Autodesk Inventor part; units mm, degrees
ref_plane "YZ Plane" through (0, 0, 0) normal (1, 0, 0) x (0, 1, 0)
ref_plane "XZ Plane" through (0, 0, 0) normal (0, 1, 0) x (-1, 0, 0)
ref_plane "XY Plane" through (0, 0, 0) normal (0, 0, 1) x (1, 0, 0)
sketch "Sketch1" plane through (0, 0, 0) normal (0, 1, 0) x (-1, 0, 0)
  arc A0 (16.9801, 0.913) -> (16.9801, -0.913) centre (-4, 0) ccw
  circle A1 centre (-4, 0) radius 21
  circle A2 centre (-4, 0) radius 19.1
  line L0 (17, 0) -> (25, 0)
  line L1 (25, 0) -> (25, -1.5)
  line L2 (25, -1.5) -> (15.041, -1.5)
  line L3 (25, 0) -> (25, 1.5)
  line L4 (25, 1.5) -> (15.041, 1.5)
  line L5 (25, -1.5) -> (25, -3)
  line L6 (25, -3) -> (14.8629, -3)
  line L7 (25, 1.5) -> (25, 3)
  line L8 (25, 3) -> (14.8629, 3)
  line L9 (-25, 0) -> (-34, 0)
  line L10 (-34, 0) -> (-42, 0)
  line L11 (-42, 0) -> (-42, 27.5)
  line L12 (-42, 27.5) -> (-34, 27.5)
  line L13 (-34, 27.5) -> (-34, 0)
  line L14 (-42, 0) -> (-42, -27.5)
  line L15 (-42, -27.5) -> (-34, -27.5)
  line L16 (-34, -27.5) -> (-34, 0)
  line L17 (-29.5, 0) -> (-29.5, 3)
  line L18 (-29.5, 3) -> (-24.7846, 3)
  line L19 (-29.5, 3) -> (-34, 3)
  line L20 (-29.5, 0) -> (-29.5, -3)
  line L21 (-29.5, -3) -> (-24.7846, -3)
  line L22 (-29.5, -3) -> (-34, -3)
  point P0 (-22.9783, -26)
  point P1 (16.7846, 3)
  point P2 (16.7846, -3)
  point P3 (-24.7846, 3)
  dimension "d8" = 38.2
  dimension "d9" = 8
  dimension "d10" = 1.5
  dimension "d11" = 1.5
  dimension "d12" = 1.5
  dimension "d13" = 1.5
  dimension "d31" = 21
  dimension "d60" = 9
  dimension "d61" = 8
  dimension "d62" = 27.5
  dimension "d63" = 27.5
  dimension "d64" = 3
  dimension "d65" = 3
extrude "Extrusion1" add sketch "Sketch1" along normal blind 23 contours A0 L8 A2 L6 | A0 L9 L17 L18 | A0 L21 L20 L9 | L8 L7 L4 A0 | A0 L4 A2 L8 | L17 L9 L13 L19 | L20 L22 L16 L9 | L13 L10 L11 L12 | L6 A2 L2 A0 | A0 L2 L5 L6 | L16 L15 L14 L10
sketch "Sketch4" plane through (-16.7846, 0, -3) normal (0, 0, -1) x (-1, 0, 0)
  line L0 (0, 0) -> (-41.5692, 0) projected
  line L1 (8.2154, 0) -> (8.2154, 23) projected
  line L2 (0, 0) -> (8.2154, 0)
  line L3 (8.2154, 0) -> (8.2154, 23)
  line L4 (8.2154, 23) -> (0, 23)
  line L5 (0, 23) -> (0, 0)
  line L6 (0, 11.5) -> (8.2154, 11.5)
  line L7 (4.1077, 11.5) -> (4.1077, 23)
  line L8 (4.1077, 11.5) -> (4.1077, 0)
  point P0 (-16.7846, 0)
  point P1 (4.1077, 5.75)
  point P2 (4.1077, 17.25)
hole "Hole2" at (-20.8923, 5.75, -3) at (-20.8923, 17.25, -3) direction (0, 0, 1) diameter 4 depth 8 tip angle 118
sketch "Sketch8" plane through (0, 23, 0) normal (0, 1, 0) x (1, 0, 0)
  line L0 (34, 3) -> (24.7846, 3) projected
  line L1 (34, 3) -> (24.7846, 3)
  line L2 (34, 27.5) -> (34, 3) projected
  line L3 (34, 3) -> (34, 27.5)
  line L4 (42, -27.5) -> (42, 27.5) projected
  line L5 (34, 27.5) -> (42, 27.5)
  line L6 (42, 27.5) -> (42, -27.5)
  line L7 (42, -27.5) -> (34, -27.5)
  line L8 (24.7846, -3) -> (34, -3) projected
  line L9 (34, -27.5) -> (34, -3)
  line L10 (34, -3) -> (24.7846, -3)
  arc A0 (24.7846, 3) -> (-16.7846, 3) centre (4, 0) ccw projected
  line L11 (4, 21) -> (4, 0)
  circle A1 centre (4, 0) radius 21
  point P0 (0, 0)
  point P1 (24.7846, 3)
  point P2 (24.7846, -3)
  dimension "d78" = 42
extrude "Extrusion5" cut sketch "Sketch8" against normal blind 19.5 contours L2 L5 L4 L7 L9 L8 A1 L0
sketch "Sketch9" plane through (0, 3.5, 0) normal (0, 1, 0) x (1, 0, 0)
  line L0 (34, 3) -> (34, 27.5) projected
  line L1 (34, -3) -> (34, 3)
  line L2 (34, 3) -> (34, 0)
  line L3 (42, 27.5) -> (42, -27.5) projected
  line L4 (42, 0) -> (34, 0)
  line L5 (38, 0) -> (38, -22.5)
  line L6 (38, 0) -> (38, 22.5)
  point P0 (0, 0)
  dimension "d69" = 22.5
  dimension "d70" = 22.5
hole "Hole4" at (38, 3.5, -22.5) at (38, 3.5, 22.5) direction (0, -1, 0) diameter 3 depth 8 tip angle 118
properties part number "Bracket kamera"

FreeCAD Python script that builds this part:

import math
import FreeCAD as App
import Part
import Sketcher

V = App.Vector

doc = App.newDocument("Part")
params = doc.addObject("Spreadsheet::Sheet", "Params")
for row, (alias, value) in enumerate([
    ("sketch1_radius", "21 mm"),
    ("sketch1_radius2", "19.1 mm"),
    ("sketch1_width", "8 mm"),
    ("sketch1_height", "1.5 mm"),
    ("pad1_length", "23 mm"),
    ("sketch2_diameter", "4 mm"),
    ("hole_diameter", "4 mm"),
    ("hole_depth", "8 mm"),
    ("sketch3_radius", "21 mm"),
    ("sketch3_width", "8 mm"),
    ("sketch3_height", "55 mm"),
    ("sketch3_height2", "24.5 mm"),
    ("pocket1_length", "19.5 mm"),
    ("sketch4_diameter", "3 mm"),
    ("hole2_diameter", "3 mm"),
    ("hole2_depth", "8 mm"),
], start=1):
    params.set(f"A{row}", alias)
    params.set(f"B{row}", "=" + value)
    params.setAlias(f"B{row}", alias)

body = doc.addObject("PartDesign::Body", "Body")

# Sketch on XZ plane
sketch1 = body.newObject("Sketcher::SketchObject", "Sketch")
sketch1.AttachmentSupport = (doc.getObject("XZ_Plane"), [""])
sketch1.MapMode = "FlatFace"
sketch1.addGeometry([
    Part.ArcOfCircle(Part.Circle(V(4, 0, 0), V(0, 0, 1), 21), math.radians(8), math.radians(172)),  # 0
    Part.LineSegment(V(24.8, 3, 0), V(34, 3, 0)),  # 1
    Part.LineSegment(V(34, 3, 0), V(34, 27.5, 0)),  # 2
    Part.LineSegment(V(34, 27.5, 0), V(42, 27.5, 0)),  # 3
    Part.LineSegment(V(42, 27.5, 0), V(42, -27.5, 0)),  # 4
    Part.LineSegment(V(42, -27.5, 0), V(34, -27.5, 0)),  # 5
    Part.LineSegment(V(34, -27.5, 0), V(34, -3, 0)),  # 6
    Part.LineSegment(V(34, -3, 0), V(24.8, -3, 0)),  # 7
    Part.ArcOfCircle(Part.Circle(V(4, 0, 0), V(0, 0, 1), 21), math.radians(-172), math.radians(-8)),  # 8
    Part.LineSegment(V(-16.8, -3, 0), V(-25, -3, 0)),  # 9
    Part.LineSegment(V(-25, -3, 0), V(-25, -1.5, 0)),  # 10
    Part.LineSegment(V(-25, -1.5, 0), V(-15, -1.5, 0)),  # 11
    Part.ArcOfCircle(Part.Circle(V(4, 0, 0), V(0, 0, 1), 19.1), math.radians(-175), math.radians(175)),  # 12
    Part.LineSegment(V(-15, 1.5, 0), V(-25, 1.5, 0)),  # 13
    Part.LineSegment(V(-25, 1.5, 0), V(-25, 3, 0)),  # 14
    Part.LineSegment(V(-25, 3, 0), V(-16.8, 3, 0)),  # 15
], False)
sketch1.addConstraint([
    Sketcher.Constraint("Coincident", 0, 1, 1, 1),
    Sketcher.Constraint("Coincident", 1, 2, 2, 1),
    Sketcher.Constraint("Coincident", 2, 2, 3, 1),
    Sketcher.Constraint("Coincident", 3, 2, 4, 1),
    Sketcher.Constraint("Coincident", 4, 2, 5, 1),
    Sketcher.Constraint("Coincident", 5, 2, 6, 1),
    Sketcher.Constraint("Coincident", 6, 2, 7, 1),
    Sketcher.Constraint("Coincident", 7, 2, 8, 2),
    Sketcher.Constraint("Coincident", 8, 1, 9, 1),
    Sketcher.Constraint("Coincident", 9, 2, 10, 1),
    Sketcher.Constraint("Coincident", 10, 2, 11, 1),
    Sketcher.Constraint("Coincident", 11, 2, 12, 1),
    Sketcher.Constraint("Coincident", 12, 2, 13, 1),
    Sketcher.Constraint("Coincident", 13, 2, 14, 1),
    Sketcher.Constraint("Coincident", 14, 2, 15, 1),
    Sketcher.Constraint("Coincident", 15, 2, 0, 2),
    Sketcher.Constraint("Horizontal", 1),
    Sketcher.Constraint("Vertical", 2),
    Sketcher.Constraint("Horizontal", 3),
    Sketcher.Constraint("Vertical", 4),
    Sketcher.Constraint("Horizontal", 5),
    Sketcher.Constraint("Vertical", 6),
    Sketcher.Constraint("Horizontal", 7),
    Sketcher.Constraint("Horizontal", 9),
    Sketcher.Constraint("Vertical", 10),
    Sketcher.Constraint("Horizontal", 11),
    Sketcher.Constraint("Horizontal", 13),
    Sketcher.Constraint("Vertical", 14),
    Sketcher.Constraint("Horizontal", 15),
    Sketcher.Constraint("Coincident", 8, 3, 0, 3),
    Sketcher.Constraint("Coincident", 12, 3, 0, 3),
    Sketcher.Constraint("Equal", 0, 8),
    Sketcher.Constraint("Symmetric", 2, 2, 5, 2, -1),
    Sketcher.Constraint("Symmetric", 0, 1, 7, 2, -1),
    Sketcher.Constraint("Symmetric", 10, 2, 13, 2, -1),
    Sketcher.Constraint("Horizontal", 7, 2, 8, 1),
    Sketcher.Constraint("Horizontal", 1, 2, 14, 2),
    Sketcher.Constraint("Radius", 0, 21.0),
    Sketcher.Constraint("Radius", 12, 19.1),
    Sketcher.Constraint("DistanceX", 3, 1, 3, 2, 8.0),
    Sketcher.Constraint("DistanceY", 10, 1, 10, 2, 1.5),
    Sketcher.Constraint("DistanceY", -1, 1, 0, 1, 3.0),
    Sketcher.Constraint("DistanceY", -1, 1, 2, 2, 27.5),
    Sketcher.Constraint("DistanceX", -1, 1, 0, 3, 4.0),
    Sketcher.Constraint("DistanceX", -1, 1, 1, 2, 34.0),
    Sketcher.Constraint("DistanceX", 9, 2, -1, 1, 25.0),
])
sketch1.setExpression("Constraints[37]", "Params.sketch1_radius")
sketch1.setExpression("Constraints[38]", "Params.sketch1_radius2")
sketch1.setExpression("Constraints[39]", "Params.sketch1_width")
sketch1.setExpression("Constraints[40]", "Params.sketch1_height")
pad1 = body.newObject("PartDesign::Pad", "Pad")
pad1.Profile = sketch1
pad1.setExpression("Length", "Params.pad1_length")
pad1.Reversed = True

# Sketch on XY plane
sketch2 = body.newObject("Sketcher::SketchObject", "Sketch001")
sketch2.AttachmentSupport = (doc.getObject("XY_Plane"), [""])
sketch2.MapMode = "FlatFace"
sketch2.AttachmentOffset = App.Placement(V(0, 0, -3), App.Rotation())
sketch2.addGeometry([
    Part.Circle(V(-20.9, 5.8, 0), V(0, 0, 1), 2),
    Part.Circle(V(-20.9, 17.2, 0), V(0, 0, 1), 2),
], False)
sketch2.addConstraint([
    Sketcher.Constraint("Equal", 0, 1),
    Sketcher.Constraint("Vertical", 0, 3, 1, 3),
    Sketcher.Constraint("Diameter", 0, 4.0),
    Sketcher.Constraint("DistanceY", 0, 3, 1, 3, 11.5),
    Sketcher.Constraint("DistanceY", -1, 1, 0, 3, 5.75),
    Sketcher.Constraint("DistanceX", 0, 3, -1, 1, 20.8923),
])
sketch2.setExpression("Constraints[2]", "Params.sketch2_diameter")
doc.recompute()
hole = body.newObject("PartDesign::Hole", "Hole")
hole.Profile = sketch2
hole.ThreadType = "None"
hole.setExpression("Diameter", "Params.hole_diameter")
hole.DepthType = "Dimension"
hole.setExpression("Depth", "Params.hole_depth")
hole.DrillPoint = "Angled"
hole.DrillPointAngle = 118
hole.Reversed = True

# Sketch on XZ plane
sketch3 = body.newObject("Sketcher::SketchObject", "Sketch002")
sketch3.AttachmentSupport = (doc.getObject("XZ_Plane"), [""])
sketch3.MapMode = "FlatFace"
sketch3.AttachmentOffset = App.Placement(V(0, 0, -23), App.Rotation())
sketch3.addGeometry([
    Part.LineSegment(V(34, -28, 0), V(34, -3, 0)),  # 0
    Part.LineSegment(V(34, -3, 0), V(25, -3, 0)),  # 1
    Part.ArcOfCircle(Part.Circle(V(4, 0, 0), V(0, 0, 1), 21), math.radians(-8.21), math.radians(8.21)),  # 2
    Part.LineSegment(V(25, 3, 0), V(34, 3, 0)),  # 3
    Part.LineSegment(V(34, 3, 0), V(34, 28, 0)),  # 4
    Part.LineSegment(V(34, 28, 0), V(42, 28, 0)),  # 5
    Part.LineSegment(V(42, 28, 0), V(42, -28, 0)),  # 6
    Part.LineSegment(V(42, -28, 0), V(34, -28, 0)),  # 7
], False)
sketch3.addConstraint([
    Sketcher.Constraint("Coincident", 0, 2, 1, 1),
    Sketcher.Constraint("Coincident", 1, 2, 2, 1),
    Sketcher.Constraint("Coincident", 2, 2, 3, 1),
    Sketcher.Constraint("Coincident", 3, 2, 4, 1),
    Sketcher.Constraint("Coincident", 4, 2, 5, 1),
    Sketcher.Constraint("Coincident", 5, 2, 6, 1),
    Sketcher.Constraint("Coincident", 6, 2, 7, 1),
    Sketcher.Constraint("Coincident", 7, 2, 0, 1),
    Sketcher.Constraint("Vertical", 0),
    Sketcher.Constraint("Horizontal", 1),
    Sketcher.Constraint("Horizontal", 3),
    Sketcher.Constraint("Vertical", 4),
    Sketcher.Constraint("Horizontal", 5),
    Sketcher.Constraint("Vertical", 6),
    Sketcher.Constraint("Horizontal", 7),
    Sketcher.Constraint("Symmetric", 1, 2, 2, 2, -1),
    Sketcher.Constraint("Symmetric", 4, 2, 7, 2, -1),
    Sketcher.Constraint("Radius", 2, 21.0),
    Sketcher.Constraint("DistanceX", -1, 1, 5, 2, 42.0),
    Sketcher.Constraint("DistanceX", 5, 1, 5, 2, 8.0),
    Sketcher.Constraint("DistanceY", 6, 2, 6, 1, 55.0),
    Sketcher.Constraint("DistanceY", 0, 1, 0, 2, 24.5),
    Sketcher.Constraint("DistanceX", -1, 1, 2, 3, 4.0),
])
sketch3.setExpression("Constraints[17]", "Params.sketch3_radius")
sketch3.setExpression("Constraints[19]", "Params.sketch3_width")
sketch3.setExpression("Constraints[20]", "Params.sketch3_height")
sketch3.setExpression("Constraints[21]", "Params.sketch3_height2")
pocket1 = body.newObject("PartDesign::Pocket", "Pocket")
pocket1.Profile = sketch3
pocket1.setExpression("Length", "Params.pocket1_length")
pocket1.Reversed = True

# Sketch on XZ plane
sketch4 = body.newObject("Sketcher::SketchObject", "Sketch003")
sketch4.AttachmentSupport = (doc.getObject("XZ_Plane"), [""])
sketch4.MapMode = "FlatFace"
sketch4.AttachmentOffset = App.Placement(V(0, 0, -3.5), App.Rotation())
sketch4.addGeometry([
    Part.Circle(V(38, -22.5, 0), V(0, 0, 1), 1.5),
    Part.Circle(V(38, 22.5, 0), V(0, 0, 1), 1.5),
], False)
sketch4.addConstraint([
    Sketcher.Constraint("Equal", 0, 1),
    Sketcher.Constraint("Symmetric", 0, 3, 1, 3, -1),
    Sketcher.Constraint("Diameter", 0, 3.0),
    Sketcher.Constraint("DistanceX", -1, 1, 0, 3, 38.0),
    Sketcher.Constraint("DistanceY", 0, 3, 1, 3, 45.0),
])
sketch4.setExpression("Constraints[2]", "Params.sketch4_diameter")
doc.recompute()
hole2 = body.newObject("PartDesign::Hole", "Hole001")
hole2.Profile = sketch4
hole2.ThreadType = "None"
hole2.setExpression("Diameter", "Params.hole2_diameter")
hole2.DepthType = "Dimension"
hole2.setExpression("Depth", "Params.hole2_depth")
hole2.DrillPoint = "Angled"
hole2.DrillPointAngle = 118
hole2.Reversed = True

doc.recompute()
